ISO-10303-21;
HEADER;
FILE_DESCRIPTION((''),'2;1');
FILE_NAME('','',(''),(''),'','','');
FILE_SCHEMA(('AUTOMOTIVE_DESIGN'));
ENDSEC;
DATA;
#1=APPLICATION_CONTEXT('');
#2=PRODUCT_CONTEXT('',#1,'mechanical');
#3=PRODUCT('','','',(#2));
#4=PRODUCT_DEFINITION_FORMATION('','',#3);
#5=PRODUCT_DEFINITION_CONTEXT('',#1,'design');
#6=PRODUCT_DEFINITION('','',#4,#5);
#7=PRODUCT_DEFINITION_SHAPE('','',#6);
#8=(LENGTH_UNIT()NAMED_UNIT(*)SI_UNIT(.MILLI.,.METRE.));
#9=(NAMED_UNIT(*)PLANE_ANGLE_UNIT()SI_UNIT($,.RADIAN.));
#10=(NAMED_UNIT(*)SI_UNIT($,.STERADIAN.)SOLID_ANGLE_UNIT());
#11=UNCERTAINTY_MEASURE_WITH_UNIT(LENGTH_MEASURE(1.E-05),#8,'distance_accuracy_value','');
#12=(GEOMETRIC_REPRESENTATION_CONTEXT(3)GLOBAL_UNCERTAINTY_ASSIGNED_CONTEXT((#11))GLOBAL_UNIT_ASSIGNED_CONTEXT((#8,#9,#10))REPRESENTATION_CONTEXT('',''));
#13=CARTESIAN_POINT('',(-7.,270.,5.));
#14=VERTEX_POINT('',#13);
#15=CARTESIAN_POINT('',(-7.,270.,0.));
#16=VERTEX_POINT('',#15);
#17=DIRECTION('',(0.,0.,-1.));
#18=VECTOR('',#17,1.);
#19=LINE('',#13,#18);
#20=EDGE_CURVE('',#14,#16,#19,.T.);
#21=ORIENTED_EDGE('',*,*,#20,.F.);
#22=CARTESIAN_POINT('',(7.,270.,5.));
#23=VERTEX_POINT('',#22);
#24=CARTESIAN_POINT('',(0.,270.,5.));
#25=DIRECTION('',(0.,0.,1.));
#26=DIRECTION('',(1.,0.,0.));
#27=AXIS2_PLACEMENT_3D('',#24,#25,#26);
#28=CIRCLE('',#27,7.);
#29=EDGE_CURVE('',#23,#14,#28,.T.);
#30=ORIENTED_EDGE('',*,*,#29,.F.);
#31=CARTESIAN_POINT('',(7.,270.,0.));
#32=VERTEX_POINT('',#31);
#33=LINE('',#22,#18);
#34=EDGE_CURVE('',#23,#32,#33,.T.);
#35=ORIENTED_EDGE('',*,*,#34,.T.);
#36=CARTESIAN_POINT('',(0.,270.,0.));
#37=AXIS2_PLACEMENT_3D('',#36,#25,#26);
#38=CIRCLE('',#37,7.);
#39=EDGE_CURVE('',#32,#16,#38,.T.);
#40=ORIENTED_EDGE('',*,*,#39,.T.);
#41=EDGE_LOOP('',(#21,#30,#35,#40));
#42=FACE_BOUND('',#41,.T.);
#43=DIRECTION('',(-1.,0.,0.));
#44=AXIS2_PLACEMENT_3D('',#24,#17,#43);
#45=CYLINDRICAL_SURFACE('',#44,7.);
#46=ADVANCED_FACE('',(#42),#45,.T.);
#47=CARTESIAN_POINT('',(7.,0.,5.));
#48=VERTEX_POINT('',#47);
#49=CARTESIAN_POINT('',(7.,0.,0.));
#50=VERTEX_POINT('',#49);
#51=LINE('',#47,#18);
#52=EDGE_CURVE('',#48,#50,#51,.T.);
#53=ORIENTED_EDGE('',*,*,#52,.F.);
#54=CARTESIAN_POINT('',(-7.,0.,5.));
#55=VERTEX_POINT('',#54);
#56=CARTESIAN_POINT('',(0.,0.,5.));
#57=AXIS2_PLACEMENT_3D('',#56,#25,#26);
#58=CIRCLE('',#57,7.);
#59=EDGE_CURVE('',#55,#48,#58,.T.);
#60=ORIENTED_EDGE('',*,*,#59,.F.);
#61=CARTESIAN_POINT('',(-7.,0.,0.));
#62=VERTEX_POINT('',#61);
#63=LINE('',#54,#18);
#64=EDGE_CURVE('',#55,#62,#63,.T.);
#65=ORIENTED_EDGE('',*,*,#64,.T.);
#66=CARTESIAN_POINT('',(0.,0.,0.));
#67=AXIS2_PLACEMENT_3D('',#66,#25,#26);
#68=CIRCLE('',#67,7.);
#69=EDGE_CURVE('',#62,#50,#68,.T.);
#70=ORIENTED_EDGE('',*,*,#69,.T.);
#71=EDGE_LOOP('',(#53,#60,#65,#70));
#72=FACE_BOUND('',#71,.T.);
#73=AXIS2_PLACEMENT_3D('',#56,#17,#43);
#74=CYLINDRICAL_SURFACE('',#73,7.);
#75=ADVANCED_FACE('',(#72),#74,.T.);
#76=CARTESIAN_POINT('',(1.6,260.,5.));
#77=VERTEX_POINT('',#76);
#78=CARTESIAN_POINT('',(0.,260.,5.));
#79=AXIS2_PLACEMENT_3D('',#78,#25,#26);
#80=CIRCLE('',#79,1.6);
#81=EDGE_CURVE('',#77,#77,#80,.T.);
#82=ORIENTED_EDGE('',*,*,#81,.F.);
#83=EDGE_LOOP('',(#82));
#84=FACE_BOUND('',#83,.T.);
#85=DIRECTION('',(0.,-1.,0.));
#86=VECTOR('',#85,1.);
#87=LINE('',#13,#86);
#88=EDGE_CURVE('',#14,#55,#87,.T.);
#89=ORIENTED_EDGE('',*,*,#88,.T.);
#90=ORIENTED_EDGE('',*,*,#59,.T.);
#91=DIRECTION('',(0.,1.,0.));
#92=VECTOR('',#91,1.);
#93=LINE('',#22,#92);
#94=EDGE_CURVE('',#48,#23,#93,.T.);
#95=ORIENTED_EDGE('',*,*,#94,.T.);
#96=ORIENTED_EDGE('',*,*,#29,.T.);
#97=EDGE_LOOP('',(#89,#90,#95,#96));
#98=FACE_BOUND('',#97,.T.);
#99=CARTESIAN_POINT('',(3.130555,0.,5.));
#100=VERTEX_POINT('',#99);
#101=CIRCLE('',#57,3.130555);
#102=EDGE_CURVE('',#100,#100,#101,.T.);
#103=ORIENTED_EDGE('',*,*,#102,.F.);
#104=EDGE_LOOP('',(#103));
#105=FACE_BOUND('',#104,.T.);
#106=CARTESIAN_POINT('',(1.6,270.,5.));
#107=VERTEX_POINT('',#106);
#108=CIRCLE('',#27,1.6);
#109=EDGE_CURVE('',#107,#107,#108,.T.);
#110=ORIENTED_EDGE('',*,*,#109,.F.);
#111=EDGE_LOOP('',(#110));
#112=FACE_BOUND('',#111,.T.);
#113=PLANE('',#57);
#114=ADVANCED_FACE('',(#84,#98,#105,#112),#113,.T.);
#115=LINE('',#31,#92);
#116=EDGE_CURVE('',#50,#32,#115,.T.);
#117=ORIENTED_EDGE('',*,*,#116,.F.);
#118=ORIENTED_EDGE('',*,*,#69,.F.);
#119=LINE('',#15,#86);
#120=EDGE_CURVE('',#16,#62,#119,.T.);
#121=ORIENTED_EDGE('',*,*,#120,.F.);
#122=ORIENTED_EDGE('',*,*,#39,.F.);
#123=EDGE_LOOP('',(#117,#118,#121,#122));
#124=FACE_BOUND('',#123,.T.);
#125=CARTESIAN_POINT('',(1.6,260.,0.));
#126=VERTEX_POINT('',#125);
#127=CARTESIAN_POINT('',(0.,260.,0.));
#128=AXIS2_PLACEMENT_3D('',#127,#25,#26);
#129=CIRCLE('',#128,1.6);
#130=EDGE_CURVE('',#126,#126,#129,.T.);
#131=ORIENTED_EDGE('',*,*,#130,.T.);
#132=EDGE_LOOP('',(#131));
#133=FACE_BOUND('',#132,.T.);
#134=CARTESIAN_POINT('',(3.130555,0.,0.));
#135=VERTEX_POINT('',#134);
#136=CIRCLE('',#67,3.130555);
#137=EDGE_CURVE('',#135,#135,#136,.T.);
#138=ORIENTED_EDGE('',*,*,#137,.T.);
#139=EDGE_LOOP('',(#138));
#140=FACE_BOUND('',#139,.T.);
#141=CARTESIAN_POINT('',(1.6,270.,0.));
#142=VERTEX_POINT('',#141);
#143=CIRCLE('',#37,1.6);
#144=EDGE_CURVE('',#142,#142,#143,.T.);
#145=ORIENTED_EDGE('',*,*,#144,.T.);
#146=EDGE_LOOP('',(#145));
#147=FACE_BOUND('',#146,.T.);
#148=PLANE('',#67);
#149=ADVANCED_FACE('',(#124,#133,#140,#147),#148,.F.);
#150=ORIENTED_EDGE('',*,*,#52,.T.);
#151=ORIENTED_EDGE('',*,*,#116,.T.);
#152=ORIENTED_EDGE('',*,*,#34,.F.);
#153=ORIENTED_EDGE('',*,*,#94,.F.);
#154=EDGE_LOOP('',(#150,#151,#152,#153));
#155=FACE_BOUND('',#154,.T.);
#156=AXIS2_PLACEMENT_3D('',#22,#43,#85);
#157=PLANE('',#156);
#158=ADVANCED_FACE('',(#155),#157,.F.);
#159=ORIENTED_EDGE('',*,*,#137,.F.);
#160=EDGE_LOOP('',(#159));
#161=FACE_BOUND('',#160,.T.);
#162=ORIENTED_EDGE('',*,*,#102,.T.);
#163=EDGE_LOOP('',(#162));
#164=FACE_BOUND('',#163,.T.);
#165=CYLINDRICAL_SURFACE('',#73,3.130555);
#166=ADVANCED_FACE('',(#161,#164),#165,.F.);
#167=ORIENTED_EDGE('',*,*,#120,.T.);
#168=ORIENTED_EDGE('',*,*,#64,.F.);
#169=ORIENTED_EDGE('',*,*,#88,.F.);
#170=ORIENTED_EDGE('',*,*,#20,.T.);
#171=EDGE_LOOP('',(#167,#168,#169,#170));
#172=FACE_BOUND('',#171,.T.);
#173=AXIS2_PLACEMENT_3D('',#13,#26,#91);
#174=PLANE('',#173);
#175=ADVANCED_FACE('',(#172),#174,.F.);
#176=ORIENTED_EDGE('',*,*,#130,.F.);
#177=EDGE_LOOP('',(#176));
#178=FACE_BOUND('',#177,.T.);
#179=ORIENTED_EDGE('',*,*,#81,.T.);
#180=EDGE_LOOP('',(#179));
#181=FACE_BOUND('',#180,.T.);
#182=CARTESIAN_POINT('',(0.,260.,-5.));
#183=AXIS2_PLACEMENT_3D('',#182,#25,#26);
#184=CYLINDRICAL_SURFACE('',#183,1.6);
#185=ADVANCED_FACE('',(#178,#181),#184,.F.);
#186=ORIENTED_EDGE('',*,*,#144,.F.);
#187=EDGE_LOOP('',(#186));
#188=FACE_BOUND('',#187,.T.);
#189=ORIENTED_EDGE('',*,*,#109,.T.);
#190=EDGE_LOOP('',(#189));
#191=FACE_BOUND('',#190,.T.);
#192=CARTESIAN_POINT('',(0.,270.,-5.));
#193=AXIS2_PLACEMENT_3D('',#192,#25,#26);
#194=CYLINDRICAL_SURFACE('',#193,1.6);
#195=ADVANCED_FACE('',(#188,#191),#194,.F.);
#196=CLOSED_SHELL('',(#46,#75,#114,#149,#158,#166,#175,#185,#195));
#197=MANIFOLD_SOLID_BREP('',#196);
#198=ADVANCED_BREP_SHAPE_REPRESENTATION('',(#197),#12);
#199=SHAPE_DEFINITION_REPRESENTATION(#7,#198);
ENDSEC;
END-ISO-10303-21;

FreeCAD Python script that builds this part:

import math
import FreeCAD as App
import Part
import Sketcher

doc = App.newDocument("Part")
body = doc.addObject("PartDesign::Body", "Body")

# Sketch on XY plane
sketch1 = body.newObject("Sketcher::SketchObject", "Sketch")
sketch1.AttachmentSupport = (doc.getObject("XY_Plane"), [""])
sketch1.MapMode = "FlatFace"
sketch1.addGeometry([
    Part.LineSegment(App.Vector(7, 0, 0), App.Vector(7, 270, 0)),  # 0
    Part.ArcOfCircle(Part.Circle(App.Vector(0, 270, 0), App.Vector(0, 0, 1), 7), math.radians(0), math.radians(180)),  # 1
    Part.LineSegment(App.Vector(-7, 270, 0), App.Vector(-7, 0, 0)),  # 2
    Part.ArcOfCircle(Part.Circle(App.Vector(0, 0, 0), App.Vector(0, 0, 1), 7), math.radians(180), math.radians(360)),  # 3
    Part.Circle(App.Vector(0, 0, 0), App.Vector(0, 0, 1), 3.130555),  # 4
], False)
sketch1.addConstraint([
    Sketcher.Constraint("Tangent", 0, 2, 1, 1),
    Sketcher.Constraint("Tangent", 1, 2, 2, 1),
    Sketcher.Constraint("Tangent", 2, 2, 3, 1),
    Sketcher.Constraint("Tangent", 3, 2, 0, 1),
    Sketcher.Constraint("Vertical", 0),
    Sketcher.Constraint("Vertical", 2),
    Sketcher.Constraint("Coincident", 3, 3, -1, 1),
    Sketcher.Constraint("Coincident", 4, 3, -1, 1),
    Sketcher.Constraint("Radius", 1, 7.0),
    Sketcher.Constraint("DistanceY", 0, 1, 0, 2, 270.0),
    Sketcher.Constraint("Diameter", 4, 6.26111),
])
pad1 = body.newObject("PartDesign::Pad", "Pad")
pad1.Profile = sketch1
pad1.Length = 5

# Sketch on XY plane
sketch2 = body.newObject("Sketcher::SketchObject", "Sketch001")
sketch2.AttachmentSupport = (doc.getObject("XY_Plane"), [""])
sketch2.MapMode = "FlatFace"
sketch2.AttachmentOffset = App.Placement(App.Vector(0, 0, 5), App.Rotation())
sketch2.addGeometry([
    Part.Circle(App.Vector(0, 270, 0), App.Vector(0, 0, 1), 1.6),
    Part.Circle(App.Vector(0, 260, 0), App.Vector(0, 0, 1), 1.6),
], False)
sketch2.addConstraint([
    Sketcher.Constraint("Equal", 0, 1),
    Sketcher.Constraint("PointOnObject", 0, 3, -2),
    Sketcher.Constraint("PointOnObject", 1, 3, -2),
    Sketcher.Constraint("Diameter", 0, 3.2),
    Sketcher.Constraint("DistanceY", -1, 1, 0, 3, 270.0),
    Sketcher.Constraint("DistanceY", -1, 1, 1, 3, 260.0),
])
pocket1 = body.newObject("PartDesign::Pocket", "Pocket")
pocket1.Profile = sketch2
pocket1.Length = 10

doc.recompute()
